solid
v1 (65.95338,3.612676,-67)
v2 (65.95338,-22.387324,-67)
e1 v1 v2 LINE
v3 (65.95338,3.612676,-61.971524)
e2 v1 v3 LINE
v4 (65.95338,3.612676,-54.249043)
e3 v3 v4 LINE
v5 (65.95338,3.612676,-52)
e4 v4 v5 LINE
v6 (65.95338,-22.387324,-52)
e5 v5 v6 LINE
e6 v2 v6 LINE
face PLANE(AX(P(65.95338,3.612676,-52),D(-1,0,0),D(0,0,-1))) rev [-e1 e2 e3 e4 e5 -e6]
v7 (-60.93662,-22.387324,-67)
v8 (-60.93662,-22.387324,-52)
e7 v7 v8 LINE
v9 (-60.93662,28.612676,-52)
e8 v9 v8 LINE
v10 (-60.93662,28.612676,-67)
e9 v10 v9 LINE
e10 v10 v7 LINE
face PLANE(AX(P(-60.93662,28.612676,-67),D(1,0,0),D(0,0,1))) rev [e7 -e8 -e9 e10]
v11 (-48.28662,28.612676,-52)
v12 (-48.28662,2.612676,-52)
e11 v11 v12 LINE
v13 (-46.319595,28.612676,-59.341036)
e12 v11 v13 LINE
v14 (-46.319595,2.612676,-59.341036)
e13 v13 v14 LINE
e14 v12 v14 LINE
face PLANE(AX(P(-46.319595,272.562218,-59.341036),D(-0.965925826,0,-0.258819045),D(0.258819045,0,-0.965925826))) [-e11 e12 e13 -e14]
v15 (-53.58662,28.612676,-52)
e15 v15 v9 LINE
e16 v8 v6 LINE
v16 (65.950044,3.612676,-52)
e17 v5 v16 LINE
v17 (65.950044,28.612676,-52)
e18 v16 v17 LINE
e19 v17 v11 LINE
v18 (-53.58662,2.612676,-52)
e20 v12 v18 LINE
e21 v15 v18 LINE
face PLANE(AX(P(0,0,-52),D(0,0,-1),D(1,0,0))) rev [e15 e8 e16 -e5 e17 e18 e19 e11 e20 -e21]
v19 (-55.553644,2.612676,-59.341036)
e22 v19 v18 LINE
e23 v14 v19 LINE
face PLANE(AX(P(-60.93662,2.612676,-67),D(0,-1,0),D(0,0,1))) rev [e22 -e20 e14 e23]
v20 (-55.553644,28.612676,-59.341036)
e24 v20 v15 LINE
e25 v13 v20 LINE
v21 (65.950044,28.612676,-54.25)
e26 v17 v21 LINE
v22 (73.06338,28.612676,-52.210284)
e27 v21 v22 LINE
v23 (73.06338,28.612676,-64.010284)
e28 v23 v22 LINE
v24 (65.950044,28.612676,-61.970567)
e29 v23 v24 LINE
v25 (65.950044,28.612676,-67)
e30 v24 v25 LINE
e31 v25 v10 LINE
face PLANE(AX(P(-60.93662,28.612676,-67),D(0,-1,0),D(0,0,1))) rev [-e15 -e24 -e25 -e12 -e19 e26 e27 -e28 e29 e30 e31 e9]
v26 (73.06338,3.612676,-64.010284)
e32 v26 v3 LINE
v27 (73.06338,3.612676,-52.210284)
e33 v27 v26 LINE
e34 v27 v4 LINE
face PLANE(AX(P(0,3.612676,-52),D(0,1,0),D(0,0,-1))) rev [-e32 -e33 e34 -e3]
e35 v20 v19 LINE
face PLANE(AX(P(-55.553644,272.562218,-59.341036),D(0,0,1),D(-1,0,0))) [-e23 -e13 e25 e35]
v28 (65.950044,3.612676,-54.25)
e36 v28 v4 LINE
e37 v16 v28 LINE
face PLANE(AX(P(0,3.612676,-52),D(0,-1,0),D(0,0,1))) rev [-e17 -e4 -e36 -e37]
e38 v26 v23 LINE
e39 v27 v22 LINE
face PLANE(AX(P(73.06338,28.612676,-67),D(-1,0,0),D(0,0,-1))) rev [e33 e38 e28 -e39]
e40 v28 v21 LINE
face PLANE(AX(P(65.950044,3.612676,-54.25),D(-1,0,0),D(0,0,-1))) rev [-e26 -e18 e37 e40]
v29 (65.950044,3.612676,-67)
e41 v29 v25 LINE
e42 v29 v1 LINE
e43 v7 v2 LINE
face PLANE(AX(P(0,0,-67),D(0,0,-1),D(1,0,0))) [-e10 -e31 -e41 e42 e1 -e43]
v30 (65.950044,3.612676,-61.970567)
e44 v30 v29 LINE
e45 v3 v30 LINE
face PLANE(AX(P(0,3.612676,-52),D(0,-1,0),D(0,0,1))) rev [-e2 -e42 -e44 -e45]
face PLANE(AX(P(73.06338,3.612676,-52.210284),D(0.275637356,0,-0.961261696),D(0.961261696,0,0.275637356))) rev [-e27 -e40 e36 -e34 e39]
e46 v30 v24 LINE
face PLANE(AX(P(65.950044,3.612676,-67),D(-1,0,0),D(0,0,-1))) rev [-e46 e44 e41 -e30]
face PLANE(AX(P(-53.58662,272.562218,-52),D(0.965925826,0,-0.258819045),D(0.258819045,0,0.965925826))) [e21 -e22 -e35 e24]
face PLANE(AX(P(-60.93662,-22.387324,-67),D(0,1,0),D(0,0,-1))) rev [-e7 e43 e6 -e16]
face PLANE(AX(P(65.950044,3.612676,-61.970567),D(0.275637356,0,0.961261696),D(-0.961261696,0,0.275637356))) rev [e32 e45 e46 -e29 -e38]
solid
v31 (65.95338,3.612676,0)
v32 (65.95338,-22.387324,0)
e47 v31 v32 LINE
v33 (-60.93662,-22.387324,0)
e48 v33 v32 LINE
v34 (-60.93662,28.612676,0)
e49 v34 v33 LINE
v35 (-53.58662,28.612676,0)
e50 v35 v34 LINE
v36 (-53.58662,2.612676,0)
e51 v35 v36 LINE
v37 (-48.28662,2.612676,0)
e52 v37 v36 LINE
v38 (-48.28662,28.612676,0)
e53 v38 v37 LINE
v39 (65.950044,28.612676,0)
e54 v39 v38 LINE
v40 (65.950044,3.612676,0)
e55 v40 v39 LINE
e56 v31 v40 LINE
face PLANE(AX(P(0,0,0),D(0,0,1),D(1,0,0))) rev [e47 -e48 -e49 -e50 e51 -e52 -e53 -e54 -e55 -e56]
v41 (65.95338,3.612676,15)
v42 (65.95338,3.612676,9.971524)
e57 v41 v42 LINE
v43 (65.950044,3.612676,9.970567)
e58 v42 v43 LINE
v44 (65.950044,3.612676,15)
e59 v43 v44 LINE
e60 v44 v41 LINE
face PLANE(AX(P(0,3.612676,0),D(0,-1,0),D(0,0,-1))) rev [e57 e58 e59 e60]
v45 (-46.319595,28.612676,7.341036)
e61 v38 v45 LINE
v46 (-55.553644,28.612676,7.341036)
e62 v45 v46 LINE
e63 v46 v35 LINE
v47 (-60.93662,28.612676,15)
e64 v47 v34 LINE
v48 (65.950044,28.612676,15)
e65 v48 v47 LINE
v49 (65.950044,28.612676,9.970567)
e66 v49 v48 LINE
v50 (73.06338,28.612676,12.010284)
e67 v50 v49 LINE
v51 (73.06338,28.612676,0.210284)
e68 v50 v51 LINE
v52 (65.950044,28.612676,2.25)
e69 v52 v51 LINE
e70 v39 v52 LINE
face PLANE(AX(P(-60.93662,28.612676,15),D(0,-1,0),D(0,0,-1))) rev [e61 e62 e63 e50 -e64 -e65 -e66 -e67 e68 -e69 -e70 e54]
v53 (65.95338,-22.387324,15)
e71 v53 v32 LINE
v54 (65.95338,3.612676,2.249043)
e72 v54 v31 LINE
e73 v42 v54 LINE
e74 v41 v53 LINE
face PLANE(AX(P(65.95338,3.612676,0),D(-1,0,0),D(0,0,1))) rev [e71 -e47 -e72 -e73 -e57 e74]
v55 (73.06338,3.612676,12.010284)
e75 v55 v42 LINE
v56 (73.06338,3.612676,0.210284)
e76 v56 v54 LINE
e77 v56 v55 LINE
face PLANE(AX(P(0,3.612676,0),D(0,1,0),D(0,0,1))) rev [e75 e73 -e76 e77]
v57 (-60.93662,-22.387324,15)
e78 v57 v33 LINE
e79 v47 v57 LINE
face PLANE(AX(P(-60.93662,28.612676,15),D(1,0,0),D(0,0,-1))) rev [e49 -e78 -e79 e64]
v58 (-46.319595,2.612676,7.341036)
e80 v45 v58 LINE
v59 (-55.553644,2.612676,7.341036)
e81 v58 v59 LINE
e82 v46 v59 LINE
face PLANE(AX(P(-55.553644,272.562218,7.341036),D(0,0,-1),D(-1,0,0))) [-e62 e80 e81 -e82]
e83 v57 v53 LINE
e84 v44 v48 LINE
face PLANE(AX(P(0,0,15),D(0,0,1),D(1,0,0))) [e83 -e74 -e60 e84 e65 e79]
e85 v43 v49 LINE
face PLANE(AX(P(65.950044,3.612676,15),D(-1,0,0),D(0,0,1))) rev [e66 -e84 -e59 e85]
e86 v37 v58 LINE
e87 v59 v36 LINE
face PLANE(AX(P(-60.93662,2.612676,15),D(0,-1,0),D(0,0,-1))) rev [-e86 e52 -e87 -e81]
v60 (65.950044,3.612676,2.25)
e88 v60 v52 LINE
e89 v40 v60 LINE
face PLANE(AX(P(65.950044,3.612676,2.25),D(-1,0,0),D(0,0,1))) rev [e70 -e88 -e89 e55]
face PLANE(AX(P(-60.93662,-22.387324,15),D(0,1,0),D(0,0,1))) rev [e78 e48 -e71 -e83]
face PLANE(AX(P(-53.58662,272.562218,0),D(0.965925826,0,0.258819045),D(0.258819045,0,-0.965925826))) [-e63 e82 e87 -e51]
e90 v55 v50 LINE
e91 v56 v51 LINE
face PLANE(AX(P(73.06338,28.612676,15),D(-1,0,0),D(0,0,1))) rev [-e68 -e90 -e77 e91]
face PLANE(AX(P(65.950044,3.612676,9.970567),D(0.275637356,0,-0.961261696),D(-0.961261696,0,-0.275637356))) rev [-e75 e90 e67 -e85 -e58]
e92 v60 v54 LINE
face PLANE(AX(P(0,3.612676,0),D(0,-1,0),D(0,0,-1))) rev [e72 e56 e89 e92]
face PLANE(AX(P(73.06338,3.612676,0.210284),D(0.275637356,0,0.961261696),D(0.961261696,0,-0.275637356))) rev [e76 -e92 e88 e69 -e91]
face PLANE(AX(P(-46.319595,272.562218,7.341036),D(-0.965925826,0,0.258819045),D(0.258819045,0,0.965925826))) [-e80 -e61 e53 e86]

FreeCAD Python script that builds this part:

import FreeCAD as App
import Part
import Sketcher
from FreeCAD import Vector
Q = App.Units.Quantity


def add_polygon(sketch, points):
    """Adds a closed chain of lines whose ends are joined by coincident constraints."""
    first, n = sketch.GeometryCount, len(points)
    for a, b in zip(points, points[1:] + points[:1]):
        sketch.addGeometry(Part.LineSegment(App.Vector(*a, 0), App.Vector(*b, 0)), False)
    for i in range(n):
        sketch.addConstraint(Sketcher.Constraint("Coincident", first + i, 2, first + (i + 1) % n, 1))

doc = App.newDocument("Part")
body = doc.addObject("PartDesign::Body", "Body")

sketch1 = body.newObject("Sketcher::SketchObject", "Sketch")
sketch1.AttachmentSupport = (doc.getObject("XY_Plane"), [""])
sketch1.MapMode = "FlatFace"
add_polygon(sketch1, [(-61, 29), (-61, -22), (73, -22), (73, 29)])
sketch1.addConstraint(Sketcher.Constraint("Vertical", 0))
sketch1.addConstraint(Sketcher.Constraint("Horizontal", 1))
sketch1.addConstraint(Sketcher.Constraint("Vertical", 2))
sketch1.addConstraint(Sketcher.Constraint("Horizontal", 3))
sketch1.addConstraint(Sketcher.Constraint("DistanceX", 1, 1, 1, 2, Q("134 mm")))
sketch1.addConstraint(Sketcher.Constraint("DistanceY", 0, 2, 0, 1, Q("51 mm")))
sketch1.addConstraint(Sketcher.Constraint("DistanceX", 0, 2, -1, 1, Q("60.93662 mm")))
sketch1.addConstraint(Sketcher.Constraint("DistanceY", 0, 2, -1, 1, Q("22.387324 mm")))
pad1 = body.newObject("PartDesign::Pad", "Pad")
pad1.Profile = sketch1
pad1.Length = 15

sketch2 = body.newObject("Sketcher::SketchObject", "Sketch001")
sketch2.AttachmentSupport = (doc.getObject("XZ_Plane"), [""])
sketch2.MapMode = "FlatFace"
sketch2.AttachmentOffset = App.Placement(Vector(0, 0, -28.612676), App.Rotation())
add_polygon(sketch2, [(-341, 0), (-54, 0), (-56, 7), (-46, 7), (-48, 0), (-121, -270), (-554, -623), (-774, -353)])
sketch2.addConstraint(Sketcher.Constraint("Horizontal", 0))
sketch2.addConstraint(Sketcher.Constraint("Horizontal", 2))
sketch2.addConstraint(Sketcher.Constraint("PointOnObject", 0, 2, -1))
sketch2.addConstraint(Sketcher.Constraint("PointOnObject", 3, 2, -1))
sketch2.addConstraint(Sketcher.Constraint("Parallel", 3, 4))
sketch2.addConstraint(Sketcher.Constraint("Perpendicular", 5, 6))
sketch2.addConstraint(Sketcher.Constraint("Perpendicular", 6, 7))
sketch2.addConstraint(Sketcher.Constraint("Equal", 1, 3))
sketch2.addConstraint(Sketcher.Constraint("Equal", 5, 7))
sketch2.addConstraint(Sketcher.Constraint("Angle", 1, Q("105 deg")))
sketch2.addConstraint(Sketcher.Constraint("Distance", 1, Q("7.6 mm")))
sketch2.addConstraint(Sketcher.Constraint("DistanceX", 0, 2, 3, 2, Q("5.3 mm")))
sketch2.addConstraint(Sketcher.Constraint("DistanceX", 4, 2, 1, 2, Q("65.117901 mm")))
sketch2.addConstraint(Sketcher.Constraint("DistanceX", 7, 2, 2, 2, Q("294.290902 mm")))
sketch2.addConstraint(Sketcher.Constraint("DistanceX", 0, 2, -1, 1, Q("53.58662 mm")))
sketch2.addConstraint(Sketcher.Constraint("DistanceX", 5, 2, -1, 1, Q("554.437862 mm")))
pocket1 = body.newObject("PartDesign::Pocket", "Pocket")
pocket1.Profile = sketch2
pocket1.Type = "TwoLengths"
pocket1.Length = 1
pocket1.Length2 = 26

sketch3 = body.newObject("Sketcher::SketchObject", "Sketch002")
sketch3.AttachmentSupport = (doc.getObject("XZ_Plane"), [""])
sketch3.MapMode = "FlatFace"
sketch3.AttachmentOffset = App.Placement(Vector(0, 0, -28.612676), App.Rotation())
add_polygon(sketch3, [(73.06, 0), (65.95, 0), (65.95, 2.25), (73.06, 0.21)])
add_polygon(sketch3, [(65.95, 9.97), (65.95, 15), (73.06, 15), (73.06, 12.01)])
sketch3.addConstraint(Sketcher.Constraint("Horizontal", 0))
sketch3.addConstraint(Sketcher.Constraint("Vertical", 1))
sketch3.addConstraint(Sketcher.Constraint("Vertical", 3))
sketch3.addConstraint(Sketcher.Constraint("Vertical", 4))
sketch3.addConstraint(Sketcher.Constraint("Horizontal", 5))
sketch3.addConstraint(Sketcher.Constraint("Vertical", 6))
sketch3.addConstraint(Sketcher.Constraint("PointOnObject", 0, 2, -1))
sketch3.addConstraint(Sketcher.Constraint("Vertical", 1, 2, 4, 2))
sketch3.addConstraint(Sketcher.Constraint("Vertical", 3, 2, 5, 2))
sketch3.addConstraint(Sketcher.Constraint("Equal", 2, 7))
sketch3.addConstraint(Sketcher.Constraint("Angle", 2, Q("-16 deg")))
sketch3.addConstraint(Sketcher.Constraint("DistanceY", -1, 1, 4, 2, Q("15 mm")))
sketch3.addConstraint(Sketcher.Constraint("Distance", 2, Q("7.4 mm")))
sketch3.addConstraint(Sketcher.Constraint("DistanceY", 1, 1, 1, 2, Q("2.25 mm")))
sketch3.addConstraint(Sketcher.Constraint("DistanceY", 2, 2, 6, 2, Q("11.8 mm")))
sketch3.addConstraint(Sketcher.Constraint("DistanceX", -1, 1, 2, 2, Q("73.06338 mm")))
pocket2 = body.newObject("PartDesign::Pocket", "Pocket001")
pocket2.Profile = sketch3
pocket2.Length = 25
pocket2.Reversed = True

sketch4 = body.newObject("Sketcher::SketchObject", "Sketch003")
sketch4.AttachmentSupport = (doc.getObject("XZ_Plane"), [""])
sketch4.MapMode = "FlatFace"
sketch4.AttachmentOffset = App.Placement(Vector(0, 0, 22.387324), App.Rotation())
add_polygon(sketch4, [(66, 15), (66, 0), (73, 0), (73, 15)])
sketch4.addConstraint(Sketcher.Constraint("Vertical", 0))
sketch4.addConstraint(Sketcher.Constraint("Horizontal", 1))
sketch4.addConstraint(Sketcher.Constraint("Vertical", 2))
sketch4.addConstraint(Sketcher.Constraint("Horizontal", 3))
sketch4.addConstraint(Sketcher.Constraint("PointOnObject", 0, 2, -1))
sketch4.addConstraint(Sketcher.Constraint("DistanceY", 0, 2, 0, 1, Q("15 mm")))
sketch4.addConstraint(Sketcher.Constraint("DistanceX", 1, 1, 1, 2, Q("7.11 mm")))
sketch4.addConstraint(Sketcher.Constraint("DistanceX", -1, 1, 0, 2, Q("65.95338 mm")))
pocket3 = body.newObject("PartDesign::Pocket", "Pocket002")
pocket3.Profile = sketch4
pocket3.Length = 26
body2 = doc.addObject("PartDesign::Body", "Body001")
doc.recompute()

mirroring = doc.addObject("Part::Mirroring", "Mirroring")
mirroring.Source = body
mirroring.Base = Vector(0, 0, -26)
mirroring.Normal = Vector(0, 0, -1)
body2.BaseFeature = mirroring
doc.recompute()
mirroring.Visibility = False

doc.recompute()
